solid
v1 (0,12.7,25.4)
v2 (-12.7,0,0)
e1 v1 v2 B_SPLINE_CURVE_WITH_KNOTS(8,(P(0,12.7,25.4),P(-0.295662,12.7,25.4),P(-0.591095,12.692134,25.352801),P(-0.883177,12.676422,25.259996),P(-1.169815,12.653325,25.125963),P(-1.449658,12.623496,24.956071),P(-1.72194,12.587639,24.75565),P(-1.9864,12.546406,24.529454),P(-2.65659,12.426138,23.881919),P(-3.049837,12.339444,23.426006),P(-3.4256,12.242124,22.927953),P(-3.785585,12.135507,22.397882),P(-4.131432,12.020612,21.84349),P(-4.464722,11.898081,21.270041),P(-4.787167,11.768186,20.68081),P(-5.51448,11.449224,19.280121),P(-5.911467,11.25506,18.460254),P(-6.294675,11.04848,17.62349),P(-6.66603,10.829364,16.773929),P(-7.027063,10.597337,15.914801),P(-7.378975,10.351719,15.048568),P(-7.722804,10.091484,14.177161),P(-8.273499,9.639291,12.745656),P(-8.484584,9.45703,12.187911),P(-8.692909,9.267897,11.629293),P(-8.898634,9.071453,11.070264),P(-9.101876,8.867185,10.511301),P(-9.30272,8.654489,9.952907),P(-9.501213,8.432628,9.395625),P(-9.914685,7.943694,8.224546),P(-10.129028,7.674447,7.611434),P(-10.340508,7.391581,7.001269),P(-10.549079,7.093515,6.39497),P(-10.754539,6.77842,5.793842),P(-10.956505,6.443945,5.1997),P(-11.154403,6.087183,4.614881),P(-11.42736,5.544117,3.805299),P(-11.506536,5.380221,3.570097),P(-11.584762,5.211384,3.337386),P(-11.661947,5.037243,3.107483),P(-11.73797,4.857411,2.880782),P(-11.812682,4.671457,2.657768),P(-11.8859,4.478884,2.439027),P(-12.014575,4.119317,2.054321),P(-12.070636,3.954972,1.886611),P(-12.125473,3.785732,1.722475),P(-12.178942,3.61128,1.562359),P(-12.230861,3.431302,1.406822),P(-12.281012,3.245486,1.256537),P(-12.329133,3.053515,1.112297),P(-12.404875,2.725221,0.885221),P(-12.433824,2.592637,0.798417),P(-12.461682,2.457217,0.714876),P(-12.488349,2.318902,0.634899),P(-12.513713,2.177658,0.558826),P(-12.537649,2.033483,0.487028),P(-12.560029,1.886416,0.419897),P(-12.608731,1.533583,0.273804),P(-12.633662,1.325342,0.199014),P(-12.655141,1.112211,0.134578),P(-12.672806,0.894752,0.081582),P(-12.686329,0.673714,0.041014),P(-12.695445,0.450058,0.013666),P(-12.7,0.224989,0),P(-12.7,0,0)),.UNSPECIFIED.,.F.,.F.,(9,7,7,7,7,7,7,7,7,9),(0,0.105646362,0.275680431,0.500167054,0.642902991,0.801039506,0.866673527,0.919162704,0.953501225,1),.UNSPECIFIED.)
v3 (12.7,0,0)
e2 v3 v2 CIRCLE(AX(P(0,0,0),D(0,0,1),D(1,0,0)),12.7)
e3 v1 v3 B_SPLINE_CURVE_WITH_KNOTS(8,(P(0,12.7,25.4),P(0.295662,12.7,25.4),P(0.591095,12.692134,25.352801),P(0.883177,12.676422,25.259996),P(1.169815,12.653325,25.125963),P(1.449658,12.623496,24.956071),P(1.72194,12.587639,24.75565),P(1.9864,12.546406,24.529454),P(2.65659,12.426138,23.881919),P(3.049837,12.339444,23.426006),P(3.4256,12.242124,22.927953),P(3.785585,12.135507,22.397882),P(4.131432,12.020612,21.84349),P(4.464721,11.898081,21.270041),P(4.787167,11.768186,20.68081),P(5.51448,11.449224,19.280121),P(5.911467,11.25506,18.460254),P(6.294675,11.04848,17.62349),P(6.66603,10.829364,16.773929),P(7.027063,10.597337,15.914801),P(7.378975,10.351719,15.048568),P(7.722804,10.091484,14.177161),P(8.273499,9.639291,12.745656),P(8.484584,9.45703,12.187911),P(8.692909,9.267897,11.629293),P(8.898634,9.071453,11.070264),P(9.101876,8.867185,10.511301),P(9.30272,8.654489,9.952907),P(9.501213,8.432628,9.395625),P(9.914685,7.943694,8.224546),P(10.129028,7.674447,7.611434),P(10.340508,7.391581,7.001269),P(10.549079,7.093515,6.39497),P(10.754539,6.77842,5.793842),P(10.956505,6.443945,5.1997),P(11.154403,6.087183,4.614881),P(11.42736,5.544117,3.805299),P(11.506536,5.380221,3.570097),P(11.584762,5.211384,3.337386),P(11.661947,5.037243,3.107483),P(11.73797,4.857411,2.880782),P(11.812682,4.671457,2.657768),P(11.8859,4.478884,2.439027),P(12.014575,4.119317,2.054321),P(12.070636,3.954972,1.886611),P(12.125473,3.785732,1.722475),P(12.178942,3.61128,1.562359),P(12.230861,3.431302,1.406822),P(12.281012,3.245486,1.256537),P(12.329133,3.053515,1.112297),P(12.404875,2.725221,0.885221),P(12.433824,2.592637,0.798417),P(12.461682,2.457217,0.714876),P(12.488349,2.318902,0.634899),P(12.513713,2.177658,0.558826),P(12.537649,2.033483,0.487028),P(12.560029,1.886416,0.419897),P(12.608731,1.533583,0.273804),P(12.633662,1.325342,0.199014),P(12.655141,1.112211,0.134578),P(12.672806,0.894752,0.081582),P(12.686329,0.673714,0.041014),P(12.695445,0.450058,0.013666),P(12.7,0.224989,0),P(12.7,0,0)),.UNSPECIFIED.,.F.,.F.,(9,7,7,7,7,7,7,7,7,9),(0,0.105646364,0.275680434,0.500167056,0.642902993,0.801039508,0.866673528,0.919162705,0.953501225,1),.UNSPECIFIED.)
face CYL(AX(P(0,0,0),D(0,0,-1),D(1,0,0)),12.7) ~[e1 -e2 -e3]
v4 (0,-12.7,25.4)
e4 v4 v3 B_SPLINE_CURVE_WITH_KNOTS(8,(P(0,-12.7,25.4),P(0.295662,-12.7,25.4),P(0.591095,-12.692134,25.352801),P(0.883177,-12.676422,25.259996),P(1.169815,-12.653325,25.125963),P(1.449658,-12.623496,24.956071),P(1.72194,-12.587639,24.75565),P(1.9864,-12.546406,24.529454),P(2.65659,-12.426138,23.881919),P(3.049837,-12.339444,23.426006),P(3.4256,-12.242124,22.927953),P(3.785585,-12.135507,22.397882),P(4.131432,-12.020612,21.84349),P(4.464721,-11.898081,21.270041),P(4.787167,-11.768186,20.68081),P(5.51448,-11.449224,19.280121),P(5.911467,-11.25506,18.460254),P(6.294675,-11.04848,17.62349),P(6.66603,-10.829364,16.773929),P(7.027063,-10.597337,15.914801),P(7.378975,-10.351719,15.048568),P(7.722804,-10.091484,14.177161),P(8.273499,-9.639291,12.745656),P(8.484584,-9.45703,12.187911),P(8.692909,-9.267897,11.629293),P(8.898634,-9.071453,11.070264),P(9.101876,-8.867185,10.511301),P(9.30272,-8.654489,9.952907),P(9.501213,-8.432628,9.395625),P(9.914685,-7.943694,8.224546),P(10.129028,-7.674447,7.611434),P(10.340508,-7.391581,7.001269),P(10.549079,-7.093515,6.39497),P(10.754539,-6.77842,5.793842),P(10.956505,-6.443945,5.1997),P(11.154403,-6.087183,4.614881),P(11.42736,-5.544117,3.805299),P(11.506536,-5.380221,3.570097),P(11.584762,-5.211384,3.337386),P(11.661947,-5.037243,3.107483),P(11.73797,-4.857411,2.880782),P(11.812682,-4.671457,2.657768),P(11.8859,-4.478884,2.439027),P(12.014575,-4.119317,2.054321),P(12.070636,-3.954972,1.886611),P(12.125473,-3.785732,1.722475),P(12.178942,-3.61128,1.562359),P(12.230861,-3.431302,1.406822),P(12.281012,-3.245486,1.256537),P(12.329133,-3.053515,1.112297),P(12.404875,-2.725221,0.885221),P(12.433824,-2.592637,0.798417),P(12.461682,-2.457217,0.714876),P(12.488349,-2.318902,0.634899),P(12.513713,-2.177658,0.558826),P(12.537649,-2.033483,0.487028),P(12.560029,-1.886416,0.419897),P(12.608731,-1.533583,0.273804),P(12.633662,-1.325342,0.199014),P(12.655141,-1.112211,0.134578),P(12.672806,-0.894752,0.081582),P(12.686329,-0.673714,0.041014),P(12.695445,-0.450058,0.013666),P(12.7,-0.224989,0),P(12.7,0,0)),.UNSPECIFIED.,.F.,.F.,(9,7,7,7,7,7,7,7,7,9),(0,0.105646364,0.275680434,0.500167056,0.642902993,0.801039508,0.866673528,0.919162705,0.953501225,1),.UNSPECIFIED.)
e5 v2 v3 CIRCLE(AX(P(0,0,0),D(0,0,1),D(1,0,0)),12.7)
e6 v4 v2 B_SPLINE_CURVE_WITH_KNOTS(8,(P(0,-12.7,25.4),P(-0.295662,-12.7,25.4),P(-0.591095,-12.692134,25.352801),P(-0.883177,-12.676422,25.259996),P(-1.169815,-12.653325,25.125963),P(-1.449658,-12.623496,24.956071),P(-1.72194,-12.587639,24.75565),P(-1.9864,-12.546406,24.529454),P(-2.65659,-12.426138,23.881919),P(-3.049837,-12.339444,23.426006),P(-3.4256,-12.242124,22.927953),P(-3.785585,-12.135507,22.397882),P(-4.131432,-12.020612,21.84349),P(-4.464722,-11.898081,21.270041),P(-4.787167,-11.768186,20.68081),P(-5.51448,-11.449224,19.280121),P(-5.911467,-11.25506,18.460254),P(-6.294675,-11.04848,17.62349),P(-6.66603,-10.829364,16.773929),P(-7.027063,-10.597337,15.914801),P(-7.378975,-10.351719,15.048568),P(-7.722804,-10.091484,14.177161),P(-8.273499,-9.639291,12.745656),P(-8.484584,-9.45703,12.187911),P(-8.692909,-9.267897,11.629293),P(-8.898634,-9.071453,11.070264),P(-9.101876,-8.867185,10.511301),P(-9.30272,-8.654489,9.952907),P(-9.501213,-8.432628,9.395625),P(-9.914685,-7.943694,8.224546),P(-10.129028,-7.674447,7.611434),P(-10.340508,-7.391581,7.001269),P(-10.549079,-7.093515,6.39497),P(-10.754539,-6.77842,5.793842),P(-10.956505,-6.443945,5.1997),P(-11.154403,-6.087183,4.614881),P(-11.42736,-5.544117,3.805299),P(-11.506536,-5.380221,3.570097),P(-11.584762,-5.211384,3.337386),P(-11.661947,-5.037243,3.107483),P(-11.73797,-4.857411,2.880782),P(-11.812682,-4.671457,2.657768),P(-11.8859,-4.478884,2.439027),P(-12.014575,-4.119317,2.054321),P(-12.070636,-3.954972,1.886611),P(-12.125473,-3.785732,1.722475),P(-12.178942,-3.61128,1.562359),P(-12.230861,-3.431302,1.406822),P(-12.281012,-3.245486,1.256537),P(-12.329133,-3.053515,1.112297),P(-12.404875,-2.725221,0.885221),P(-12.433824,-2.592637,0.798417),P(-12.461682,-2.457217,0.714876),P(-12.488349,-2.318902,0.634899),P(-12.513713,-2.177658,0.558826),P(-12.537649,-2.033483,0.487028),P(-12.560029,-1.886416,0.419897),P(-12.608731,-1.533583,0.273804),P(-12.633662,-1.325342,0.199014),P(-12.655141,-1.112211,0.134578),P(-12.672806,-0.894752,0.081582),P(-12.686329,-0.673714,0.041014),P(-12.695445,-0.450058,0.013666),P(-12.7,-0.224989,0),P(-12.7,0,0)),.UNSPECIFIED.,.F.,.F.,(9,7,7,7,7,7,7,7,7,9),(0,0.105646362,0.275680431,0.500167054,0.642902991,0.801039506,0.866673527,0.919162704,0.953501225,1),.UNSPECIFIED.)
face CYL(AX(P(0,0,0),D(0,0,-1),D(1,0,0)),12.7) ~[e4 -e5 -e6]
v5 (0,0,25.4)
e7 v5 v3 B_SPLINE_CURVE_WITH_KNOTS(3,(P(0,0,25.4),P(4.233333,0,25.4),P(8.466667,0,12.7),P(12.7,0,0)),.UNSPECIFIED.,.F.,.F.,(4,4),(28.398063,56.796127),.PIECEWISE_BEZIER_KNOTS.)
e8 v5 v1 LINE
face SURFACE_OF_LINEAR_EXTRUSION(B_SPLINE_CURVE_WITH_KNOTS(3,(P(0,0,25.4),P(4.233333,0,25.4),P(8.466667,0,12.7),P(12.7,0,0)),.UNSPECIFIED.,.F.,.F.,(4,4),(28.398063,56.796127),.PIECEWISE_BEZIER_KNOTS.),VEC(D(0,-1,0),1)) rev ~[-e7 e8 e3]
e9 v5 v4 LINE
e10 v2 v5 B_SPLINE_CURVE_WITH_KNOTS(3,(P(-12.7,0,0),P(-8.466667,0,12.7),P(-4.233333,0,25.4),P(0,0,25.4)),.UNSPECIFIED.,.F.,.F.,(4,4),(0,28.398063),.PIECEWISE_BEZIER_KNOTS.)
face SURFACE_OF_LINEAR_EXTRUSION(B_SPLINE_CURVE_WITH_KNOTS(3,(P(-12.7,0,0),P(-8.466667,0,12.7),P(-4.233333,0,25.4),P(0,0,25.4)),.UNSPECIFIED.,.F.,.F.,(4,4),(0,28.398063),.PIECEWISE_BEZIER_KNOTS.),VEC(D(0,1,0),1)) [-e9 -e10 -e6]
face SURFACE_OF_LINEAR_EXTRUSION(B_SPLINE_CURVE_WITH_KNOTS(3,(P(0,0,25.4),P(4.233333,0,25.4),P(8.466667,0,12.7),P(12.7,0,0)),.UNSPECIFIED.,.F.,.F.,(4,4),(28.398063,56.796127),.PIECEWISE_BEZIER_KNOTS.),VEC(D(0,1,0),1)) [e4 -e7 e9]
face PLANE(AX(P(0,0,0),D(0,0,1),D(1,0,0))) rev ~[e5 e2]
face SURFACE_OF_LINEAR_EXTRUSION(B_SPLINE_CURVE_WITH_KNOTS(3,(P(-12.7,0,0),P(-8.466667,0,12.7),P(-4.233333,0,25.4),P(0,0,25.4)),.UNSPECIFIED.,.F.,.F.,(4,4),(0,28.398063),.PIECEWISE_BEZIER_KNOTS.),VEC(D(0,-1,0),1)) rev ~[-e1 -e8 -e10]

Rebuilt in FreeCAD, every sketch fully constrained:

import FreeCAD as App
import Part
import Sketcher
from FreeCAD import Vector
Q = App.Units.Quantity

doc = App.newDocument("Part")
params = doc.addObject("Spreadsheet::Sheet", "Params")
for row, (alias, value) in enumerate([
    ("sketch1_diameter", "1 in"),
    ("pad1_length", "1 in"),
    ("pocket1_length", "2 in"),
    ("pocket2_length", "3 in"),
], start=1):
    params.set(f"A{row}", alias)
    params.set(f"B{row}", "=" + value)
    params.setAlias(f"B{row}", alias)

body = doc.addObject("PartDesign::Body", "Body")

# Sketch on XY plane
sketch1 = doc.addObject("Sketcher::SketchObject", "Sketch")
body.addObject(sketch1)
sketch1.AttachmentSupport = (doc.XY_Plane, [""])
sketch1.MapMode = "FlatFace"
sketch1.addGeometry(Part.Circle(Vector(0, 0, 0), Vector(0, 0, 1), 13), False)
sketch1.addConstraint(Sketcher.Constraint("Coincident", 0, 3, -1, 1))
sketch1.addConstraint(Sketcher.Constraint("Diameter", 0, Q("1 in")))
sketch1.setExpression("Constraints[1]", "Params.sketch1_diameter")
pad1 = doc.addObject("PartDesign::Pad", "Pad")
body.addObject(pad1)
pad1.Profile = sketch1
pad1.setExpression("Length", "Params.pad1_length")

# Sketch on XZ plane
sketch2 = doc.addObject("Sketcher::SketchObject", "Sketch001")
body.addObject(sketch2)
sketch2.AttachmentSupport = (doc.XZ_Plane, [""])
sketch2.MapMode = "FlatFace"
sketch2.addGeometry(Part.LineSegment(Vector(-12.7, 25.4, 0), Vector(-12.7, 0, 0)), False)
sketch2.addGeometry(Part.BSplineCurve([Vector(-12.7, 0, 0), Vector(-8.466667, 12.7, 0), Vector(-4.233333, 25.4, 0), Vector(0, 25.4, 0)], [4, 4], [0, 28.398063], False, 3, [1, 1, 1, 1], False), False)
sketch2.addGeometry(Part.LineSegment(Vector(0, 25.4, 0), Vector(-12.7, 25.4, 0)), False)
sketch2.addGeometry(Part.LineSegment(Vector(12.7, 25.4, 0), Vector(0, 25.4, 0)), False)
sketch2.addGeometry(Part.BSplineCurve([Vector(0, 25.4, 0), Vector(4.233333, 25.4, 0), Vector(8.466667, 12.7, 0), Vector(12.7, 0, 0)], [4, 4], [28.398063, 56.796127], False, 3, [1, 1, 1, 1], False), False)
sketch2.addGeometry(Part.LineSegment(Vector(12.7, 0, 0), Vector(12.7, 25.4, 0)), False)
sketch2.addConstraint(Sketcher.Constraint("Block", 1))
sketch2.addConstraint(Sketcher.Constraint("Block", 4))
sketch2.addConstraint(Sketcher.Constraint("Coincident", 0, 2, 1, 1))
sketch2.addConstraint(Sketcher.Constraint("Coincident", 1, 2, 2, 1))
sketch2.addConstraint(Sketcher.Constraint("Coincident", 2, 2, 0, 1))
sketch2.addConstraint(Sketcher.Constraint("Coincident", 3, 2, 4, 1))
sketch2.addConstraint(Sketcher.Constraint("Coincident", 4, 2, 5, 1))
sketch2.addConstraint(Sketcher.Constraint("Coincident", 5, 2, 3, 1))
sketch2.addConstraint(Sketcher.Constraint("Vertical", 0))
sketch2.addConstraint(Sketcher.Constraint("Horizontal", 2))
sketch2.addConstraint(Sketcher.Constraint("Horizontal", 3))
sketch2.addConstraint(Sketcher.Constraint("Vertical", 5))
pocket1 = doc.addObject("PartDesign::Pocket", "Pocket")
body.addObject(pocket1)
pocket1.Profile = sketch2
pocket1.setExpression("Length", "Params.pocket1_length")
pocket1.Midplane = True

# Sketch on XZ plane
sketch3 = doc.addObject("Sketcher::SketchObject", "Sketch002")
body.addObject(sketch3)
sketch3.AttachmentSupport = (doc.XZ_Plane, [""])
sketch3.MapMode = "FlatFace"
sketch3.AttachmentOffset = App.Placement(Vector(0, 0, 1 * 25.4), App.Rotation())
sketch3.addGeometry(Part.BSplineCurve([Vector(0, 25.4, 0), Vector(4.233333, 25.4, 0), Vector(8.466667, 12.7, 0), Vector(12.7, 0, 0)], [4, 4], [28.398063, 56.796127], False, 3, [1, 1, 1, 1], False), False)
sketch3.addGeometry(Part.LineSegment(Vector(12.7, 0, 0), Vector(12.7, 25.4, 0)), False)
sketch3.addGeometry(Part.LineSegment(Vector(12.7, 25.4, 0), Vector(0, 25.4, 0)), False)
sketch3.addGeometry(Part.LineSegment(Vector(-12.7, 25.4, 0), Vector(-12.7, 0, 0)), False)
sketch3.addGeometry(Part.BSplineCurve([Vector(-12.7, 0, 0), Vector(-8.466667, 12.7, 0), Vector(-4.233333, 25.4, 0), Vector(0, 25.4, 0)], [4, 4], [0, 28.398063], False, 3, [1, 1, 1, 1], False), False)
sketch3.addGeometry(Part.LineSegment(Vector(0, 25.4, 0), Vector(-12.7, 25.4, 0)), False)
sketch3.addConstraint(Sketcher.Constraint("Block", 0))
sketch3.addConstraint(Sketcher.Constraint("Block", 4))
sketch3.addConstraint(Sketcher.Constraint("Coincident", 0, 2, 1, 1))
sketch3.addConstraint(Sketcher.Constraint("Coincident", 1, 2, 2, 1))
sketch3.addConstraint(Sketcher.Constraint("Coincident", 2, 2, 0, 1))
sketch3.addConstraint(Sketcher.Constraint("Coincident", 3, 2, 4, 1))
sketch3.addConstraint(Sketcher.Constraint("Coincident", 4, 2, 5, 1))
sketch3.addConstraint(Sketcher.Constraint("Coincident", 5, 2, 3, 1))
sketch3.addConstraint(Sketcher.Constraint("Vertical", 1))
sketch3.addConstraint(Sketcher.Constraint("Horizontal", 2))
sketch3.addConstraint(Sketcher.Constraint("Vertical", 3))
sketch3.addConstraint(Sketcher.Constraint("Horizontal", 5))
pocket2 = doc.addObject("PartDesign::Pocket", "Pocket001")
body.addObject(pocket2)
pocket2.Profile = sketch3
pocket2.setExpression("Length", "Params.pocket2_length")

doc.recompute()
